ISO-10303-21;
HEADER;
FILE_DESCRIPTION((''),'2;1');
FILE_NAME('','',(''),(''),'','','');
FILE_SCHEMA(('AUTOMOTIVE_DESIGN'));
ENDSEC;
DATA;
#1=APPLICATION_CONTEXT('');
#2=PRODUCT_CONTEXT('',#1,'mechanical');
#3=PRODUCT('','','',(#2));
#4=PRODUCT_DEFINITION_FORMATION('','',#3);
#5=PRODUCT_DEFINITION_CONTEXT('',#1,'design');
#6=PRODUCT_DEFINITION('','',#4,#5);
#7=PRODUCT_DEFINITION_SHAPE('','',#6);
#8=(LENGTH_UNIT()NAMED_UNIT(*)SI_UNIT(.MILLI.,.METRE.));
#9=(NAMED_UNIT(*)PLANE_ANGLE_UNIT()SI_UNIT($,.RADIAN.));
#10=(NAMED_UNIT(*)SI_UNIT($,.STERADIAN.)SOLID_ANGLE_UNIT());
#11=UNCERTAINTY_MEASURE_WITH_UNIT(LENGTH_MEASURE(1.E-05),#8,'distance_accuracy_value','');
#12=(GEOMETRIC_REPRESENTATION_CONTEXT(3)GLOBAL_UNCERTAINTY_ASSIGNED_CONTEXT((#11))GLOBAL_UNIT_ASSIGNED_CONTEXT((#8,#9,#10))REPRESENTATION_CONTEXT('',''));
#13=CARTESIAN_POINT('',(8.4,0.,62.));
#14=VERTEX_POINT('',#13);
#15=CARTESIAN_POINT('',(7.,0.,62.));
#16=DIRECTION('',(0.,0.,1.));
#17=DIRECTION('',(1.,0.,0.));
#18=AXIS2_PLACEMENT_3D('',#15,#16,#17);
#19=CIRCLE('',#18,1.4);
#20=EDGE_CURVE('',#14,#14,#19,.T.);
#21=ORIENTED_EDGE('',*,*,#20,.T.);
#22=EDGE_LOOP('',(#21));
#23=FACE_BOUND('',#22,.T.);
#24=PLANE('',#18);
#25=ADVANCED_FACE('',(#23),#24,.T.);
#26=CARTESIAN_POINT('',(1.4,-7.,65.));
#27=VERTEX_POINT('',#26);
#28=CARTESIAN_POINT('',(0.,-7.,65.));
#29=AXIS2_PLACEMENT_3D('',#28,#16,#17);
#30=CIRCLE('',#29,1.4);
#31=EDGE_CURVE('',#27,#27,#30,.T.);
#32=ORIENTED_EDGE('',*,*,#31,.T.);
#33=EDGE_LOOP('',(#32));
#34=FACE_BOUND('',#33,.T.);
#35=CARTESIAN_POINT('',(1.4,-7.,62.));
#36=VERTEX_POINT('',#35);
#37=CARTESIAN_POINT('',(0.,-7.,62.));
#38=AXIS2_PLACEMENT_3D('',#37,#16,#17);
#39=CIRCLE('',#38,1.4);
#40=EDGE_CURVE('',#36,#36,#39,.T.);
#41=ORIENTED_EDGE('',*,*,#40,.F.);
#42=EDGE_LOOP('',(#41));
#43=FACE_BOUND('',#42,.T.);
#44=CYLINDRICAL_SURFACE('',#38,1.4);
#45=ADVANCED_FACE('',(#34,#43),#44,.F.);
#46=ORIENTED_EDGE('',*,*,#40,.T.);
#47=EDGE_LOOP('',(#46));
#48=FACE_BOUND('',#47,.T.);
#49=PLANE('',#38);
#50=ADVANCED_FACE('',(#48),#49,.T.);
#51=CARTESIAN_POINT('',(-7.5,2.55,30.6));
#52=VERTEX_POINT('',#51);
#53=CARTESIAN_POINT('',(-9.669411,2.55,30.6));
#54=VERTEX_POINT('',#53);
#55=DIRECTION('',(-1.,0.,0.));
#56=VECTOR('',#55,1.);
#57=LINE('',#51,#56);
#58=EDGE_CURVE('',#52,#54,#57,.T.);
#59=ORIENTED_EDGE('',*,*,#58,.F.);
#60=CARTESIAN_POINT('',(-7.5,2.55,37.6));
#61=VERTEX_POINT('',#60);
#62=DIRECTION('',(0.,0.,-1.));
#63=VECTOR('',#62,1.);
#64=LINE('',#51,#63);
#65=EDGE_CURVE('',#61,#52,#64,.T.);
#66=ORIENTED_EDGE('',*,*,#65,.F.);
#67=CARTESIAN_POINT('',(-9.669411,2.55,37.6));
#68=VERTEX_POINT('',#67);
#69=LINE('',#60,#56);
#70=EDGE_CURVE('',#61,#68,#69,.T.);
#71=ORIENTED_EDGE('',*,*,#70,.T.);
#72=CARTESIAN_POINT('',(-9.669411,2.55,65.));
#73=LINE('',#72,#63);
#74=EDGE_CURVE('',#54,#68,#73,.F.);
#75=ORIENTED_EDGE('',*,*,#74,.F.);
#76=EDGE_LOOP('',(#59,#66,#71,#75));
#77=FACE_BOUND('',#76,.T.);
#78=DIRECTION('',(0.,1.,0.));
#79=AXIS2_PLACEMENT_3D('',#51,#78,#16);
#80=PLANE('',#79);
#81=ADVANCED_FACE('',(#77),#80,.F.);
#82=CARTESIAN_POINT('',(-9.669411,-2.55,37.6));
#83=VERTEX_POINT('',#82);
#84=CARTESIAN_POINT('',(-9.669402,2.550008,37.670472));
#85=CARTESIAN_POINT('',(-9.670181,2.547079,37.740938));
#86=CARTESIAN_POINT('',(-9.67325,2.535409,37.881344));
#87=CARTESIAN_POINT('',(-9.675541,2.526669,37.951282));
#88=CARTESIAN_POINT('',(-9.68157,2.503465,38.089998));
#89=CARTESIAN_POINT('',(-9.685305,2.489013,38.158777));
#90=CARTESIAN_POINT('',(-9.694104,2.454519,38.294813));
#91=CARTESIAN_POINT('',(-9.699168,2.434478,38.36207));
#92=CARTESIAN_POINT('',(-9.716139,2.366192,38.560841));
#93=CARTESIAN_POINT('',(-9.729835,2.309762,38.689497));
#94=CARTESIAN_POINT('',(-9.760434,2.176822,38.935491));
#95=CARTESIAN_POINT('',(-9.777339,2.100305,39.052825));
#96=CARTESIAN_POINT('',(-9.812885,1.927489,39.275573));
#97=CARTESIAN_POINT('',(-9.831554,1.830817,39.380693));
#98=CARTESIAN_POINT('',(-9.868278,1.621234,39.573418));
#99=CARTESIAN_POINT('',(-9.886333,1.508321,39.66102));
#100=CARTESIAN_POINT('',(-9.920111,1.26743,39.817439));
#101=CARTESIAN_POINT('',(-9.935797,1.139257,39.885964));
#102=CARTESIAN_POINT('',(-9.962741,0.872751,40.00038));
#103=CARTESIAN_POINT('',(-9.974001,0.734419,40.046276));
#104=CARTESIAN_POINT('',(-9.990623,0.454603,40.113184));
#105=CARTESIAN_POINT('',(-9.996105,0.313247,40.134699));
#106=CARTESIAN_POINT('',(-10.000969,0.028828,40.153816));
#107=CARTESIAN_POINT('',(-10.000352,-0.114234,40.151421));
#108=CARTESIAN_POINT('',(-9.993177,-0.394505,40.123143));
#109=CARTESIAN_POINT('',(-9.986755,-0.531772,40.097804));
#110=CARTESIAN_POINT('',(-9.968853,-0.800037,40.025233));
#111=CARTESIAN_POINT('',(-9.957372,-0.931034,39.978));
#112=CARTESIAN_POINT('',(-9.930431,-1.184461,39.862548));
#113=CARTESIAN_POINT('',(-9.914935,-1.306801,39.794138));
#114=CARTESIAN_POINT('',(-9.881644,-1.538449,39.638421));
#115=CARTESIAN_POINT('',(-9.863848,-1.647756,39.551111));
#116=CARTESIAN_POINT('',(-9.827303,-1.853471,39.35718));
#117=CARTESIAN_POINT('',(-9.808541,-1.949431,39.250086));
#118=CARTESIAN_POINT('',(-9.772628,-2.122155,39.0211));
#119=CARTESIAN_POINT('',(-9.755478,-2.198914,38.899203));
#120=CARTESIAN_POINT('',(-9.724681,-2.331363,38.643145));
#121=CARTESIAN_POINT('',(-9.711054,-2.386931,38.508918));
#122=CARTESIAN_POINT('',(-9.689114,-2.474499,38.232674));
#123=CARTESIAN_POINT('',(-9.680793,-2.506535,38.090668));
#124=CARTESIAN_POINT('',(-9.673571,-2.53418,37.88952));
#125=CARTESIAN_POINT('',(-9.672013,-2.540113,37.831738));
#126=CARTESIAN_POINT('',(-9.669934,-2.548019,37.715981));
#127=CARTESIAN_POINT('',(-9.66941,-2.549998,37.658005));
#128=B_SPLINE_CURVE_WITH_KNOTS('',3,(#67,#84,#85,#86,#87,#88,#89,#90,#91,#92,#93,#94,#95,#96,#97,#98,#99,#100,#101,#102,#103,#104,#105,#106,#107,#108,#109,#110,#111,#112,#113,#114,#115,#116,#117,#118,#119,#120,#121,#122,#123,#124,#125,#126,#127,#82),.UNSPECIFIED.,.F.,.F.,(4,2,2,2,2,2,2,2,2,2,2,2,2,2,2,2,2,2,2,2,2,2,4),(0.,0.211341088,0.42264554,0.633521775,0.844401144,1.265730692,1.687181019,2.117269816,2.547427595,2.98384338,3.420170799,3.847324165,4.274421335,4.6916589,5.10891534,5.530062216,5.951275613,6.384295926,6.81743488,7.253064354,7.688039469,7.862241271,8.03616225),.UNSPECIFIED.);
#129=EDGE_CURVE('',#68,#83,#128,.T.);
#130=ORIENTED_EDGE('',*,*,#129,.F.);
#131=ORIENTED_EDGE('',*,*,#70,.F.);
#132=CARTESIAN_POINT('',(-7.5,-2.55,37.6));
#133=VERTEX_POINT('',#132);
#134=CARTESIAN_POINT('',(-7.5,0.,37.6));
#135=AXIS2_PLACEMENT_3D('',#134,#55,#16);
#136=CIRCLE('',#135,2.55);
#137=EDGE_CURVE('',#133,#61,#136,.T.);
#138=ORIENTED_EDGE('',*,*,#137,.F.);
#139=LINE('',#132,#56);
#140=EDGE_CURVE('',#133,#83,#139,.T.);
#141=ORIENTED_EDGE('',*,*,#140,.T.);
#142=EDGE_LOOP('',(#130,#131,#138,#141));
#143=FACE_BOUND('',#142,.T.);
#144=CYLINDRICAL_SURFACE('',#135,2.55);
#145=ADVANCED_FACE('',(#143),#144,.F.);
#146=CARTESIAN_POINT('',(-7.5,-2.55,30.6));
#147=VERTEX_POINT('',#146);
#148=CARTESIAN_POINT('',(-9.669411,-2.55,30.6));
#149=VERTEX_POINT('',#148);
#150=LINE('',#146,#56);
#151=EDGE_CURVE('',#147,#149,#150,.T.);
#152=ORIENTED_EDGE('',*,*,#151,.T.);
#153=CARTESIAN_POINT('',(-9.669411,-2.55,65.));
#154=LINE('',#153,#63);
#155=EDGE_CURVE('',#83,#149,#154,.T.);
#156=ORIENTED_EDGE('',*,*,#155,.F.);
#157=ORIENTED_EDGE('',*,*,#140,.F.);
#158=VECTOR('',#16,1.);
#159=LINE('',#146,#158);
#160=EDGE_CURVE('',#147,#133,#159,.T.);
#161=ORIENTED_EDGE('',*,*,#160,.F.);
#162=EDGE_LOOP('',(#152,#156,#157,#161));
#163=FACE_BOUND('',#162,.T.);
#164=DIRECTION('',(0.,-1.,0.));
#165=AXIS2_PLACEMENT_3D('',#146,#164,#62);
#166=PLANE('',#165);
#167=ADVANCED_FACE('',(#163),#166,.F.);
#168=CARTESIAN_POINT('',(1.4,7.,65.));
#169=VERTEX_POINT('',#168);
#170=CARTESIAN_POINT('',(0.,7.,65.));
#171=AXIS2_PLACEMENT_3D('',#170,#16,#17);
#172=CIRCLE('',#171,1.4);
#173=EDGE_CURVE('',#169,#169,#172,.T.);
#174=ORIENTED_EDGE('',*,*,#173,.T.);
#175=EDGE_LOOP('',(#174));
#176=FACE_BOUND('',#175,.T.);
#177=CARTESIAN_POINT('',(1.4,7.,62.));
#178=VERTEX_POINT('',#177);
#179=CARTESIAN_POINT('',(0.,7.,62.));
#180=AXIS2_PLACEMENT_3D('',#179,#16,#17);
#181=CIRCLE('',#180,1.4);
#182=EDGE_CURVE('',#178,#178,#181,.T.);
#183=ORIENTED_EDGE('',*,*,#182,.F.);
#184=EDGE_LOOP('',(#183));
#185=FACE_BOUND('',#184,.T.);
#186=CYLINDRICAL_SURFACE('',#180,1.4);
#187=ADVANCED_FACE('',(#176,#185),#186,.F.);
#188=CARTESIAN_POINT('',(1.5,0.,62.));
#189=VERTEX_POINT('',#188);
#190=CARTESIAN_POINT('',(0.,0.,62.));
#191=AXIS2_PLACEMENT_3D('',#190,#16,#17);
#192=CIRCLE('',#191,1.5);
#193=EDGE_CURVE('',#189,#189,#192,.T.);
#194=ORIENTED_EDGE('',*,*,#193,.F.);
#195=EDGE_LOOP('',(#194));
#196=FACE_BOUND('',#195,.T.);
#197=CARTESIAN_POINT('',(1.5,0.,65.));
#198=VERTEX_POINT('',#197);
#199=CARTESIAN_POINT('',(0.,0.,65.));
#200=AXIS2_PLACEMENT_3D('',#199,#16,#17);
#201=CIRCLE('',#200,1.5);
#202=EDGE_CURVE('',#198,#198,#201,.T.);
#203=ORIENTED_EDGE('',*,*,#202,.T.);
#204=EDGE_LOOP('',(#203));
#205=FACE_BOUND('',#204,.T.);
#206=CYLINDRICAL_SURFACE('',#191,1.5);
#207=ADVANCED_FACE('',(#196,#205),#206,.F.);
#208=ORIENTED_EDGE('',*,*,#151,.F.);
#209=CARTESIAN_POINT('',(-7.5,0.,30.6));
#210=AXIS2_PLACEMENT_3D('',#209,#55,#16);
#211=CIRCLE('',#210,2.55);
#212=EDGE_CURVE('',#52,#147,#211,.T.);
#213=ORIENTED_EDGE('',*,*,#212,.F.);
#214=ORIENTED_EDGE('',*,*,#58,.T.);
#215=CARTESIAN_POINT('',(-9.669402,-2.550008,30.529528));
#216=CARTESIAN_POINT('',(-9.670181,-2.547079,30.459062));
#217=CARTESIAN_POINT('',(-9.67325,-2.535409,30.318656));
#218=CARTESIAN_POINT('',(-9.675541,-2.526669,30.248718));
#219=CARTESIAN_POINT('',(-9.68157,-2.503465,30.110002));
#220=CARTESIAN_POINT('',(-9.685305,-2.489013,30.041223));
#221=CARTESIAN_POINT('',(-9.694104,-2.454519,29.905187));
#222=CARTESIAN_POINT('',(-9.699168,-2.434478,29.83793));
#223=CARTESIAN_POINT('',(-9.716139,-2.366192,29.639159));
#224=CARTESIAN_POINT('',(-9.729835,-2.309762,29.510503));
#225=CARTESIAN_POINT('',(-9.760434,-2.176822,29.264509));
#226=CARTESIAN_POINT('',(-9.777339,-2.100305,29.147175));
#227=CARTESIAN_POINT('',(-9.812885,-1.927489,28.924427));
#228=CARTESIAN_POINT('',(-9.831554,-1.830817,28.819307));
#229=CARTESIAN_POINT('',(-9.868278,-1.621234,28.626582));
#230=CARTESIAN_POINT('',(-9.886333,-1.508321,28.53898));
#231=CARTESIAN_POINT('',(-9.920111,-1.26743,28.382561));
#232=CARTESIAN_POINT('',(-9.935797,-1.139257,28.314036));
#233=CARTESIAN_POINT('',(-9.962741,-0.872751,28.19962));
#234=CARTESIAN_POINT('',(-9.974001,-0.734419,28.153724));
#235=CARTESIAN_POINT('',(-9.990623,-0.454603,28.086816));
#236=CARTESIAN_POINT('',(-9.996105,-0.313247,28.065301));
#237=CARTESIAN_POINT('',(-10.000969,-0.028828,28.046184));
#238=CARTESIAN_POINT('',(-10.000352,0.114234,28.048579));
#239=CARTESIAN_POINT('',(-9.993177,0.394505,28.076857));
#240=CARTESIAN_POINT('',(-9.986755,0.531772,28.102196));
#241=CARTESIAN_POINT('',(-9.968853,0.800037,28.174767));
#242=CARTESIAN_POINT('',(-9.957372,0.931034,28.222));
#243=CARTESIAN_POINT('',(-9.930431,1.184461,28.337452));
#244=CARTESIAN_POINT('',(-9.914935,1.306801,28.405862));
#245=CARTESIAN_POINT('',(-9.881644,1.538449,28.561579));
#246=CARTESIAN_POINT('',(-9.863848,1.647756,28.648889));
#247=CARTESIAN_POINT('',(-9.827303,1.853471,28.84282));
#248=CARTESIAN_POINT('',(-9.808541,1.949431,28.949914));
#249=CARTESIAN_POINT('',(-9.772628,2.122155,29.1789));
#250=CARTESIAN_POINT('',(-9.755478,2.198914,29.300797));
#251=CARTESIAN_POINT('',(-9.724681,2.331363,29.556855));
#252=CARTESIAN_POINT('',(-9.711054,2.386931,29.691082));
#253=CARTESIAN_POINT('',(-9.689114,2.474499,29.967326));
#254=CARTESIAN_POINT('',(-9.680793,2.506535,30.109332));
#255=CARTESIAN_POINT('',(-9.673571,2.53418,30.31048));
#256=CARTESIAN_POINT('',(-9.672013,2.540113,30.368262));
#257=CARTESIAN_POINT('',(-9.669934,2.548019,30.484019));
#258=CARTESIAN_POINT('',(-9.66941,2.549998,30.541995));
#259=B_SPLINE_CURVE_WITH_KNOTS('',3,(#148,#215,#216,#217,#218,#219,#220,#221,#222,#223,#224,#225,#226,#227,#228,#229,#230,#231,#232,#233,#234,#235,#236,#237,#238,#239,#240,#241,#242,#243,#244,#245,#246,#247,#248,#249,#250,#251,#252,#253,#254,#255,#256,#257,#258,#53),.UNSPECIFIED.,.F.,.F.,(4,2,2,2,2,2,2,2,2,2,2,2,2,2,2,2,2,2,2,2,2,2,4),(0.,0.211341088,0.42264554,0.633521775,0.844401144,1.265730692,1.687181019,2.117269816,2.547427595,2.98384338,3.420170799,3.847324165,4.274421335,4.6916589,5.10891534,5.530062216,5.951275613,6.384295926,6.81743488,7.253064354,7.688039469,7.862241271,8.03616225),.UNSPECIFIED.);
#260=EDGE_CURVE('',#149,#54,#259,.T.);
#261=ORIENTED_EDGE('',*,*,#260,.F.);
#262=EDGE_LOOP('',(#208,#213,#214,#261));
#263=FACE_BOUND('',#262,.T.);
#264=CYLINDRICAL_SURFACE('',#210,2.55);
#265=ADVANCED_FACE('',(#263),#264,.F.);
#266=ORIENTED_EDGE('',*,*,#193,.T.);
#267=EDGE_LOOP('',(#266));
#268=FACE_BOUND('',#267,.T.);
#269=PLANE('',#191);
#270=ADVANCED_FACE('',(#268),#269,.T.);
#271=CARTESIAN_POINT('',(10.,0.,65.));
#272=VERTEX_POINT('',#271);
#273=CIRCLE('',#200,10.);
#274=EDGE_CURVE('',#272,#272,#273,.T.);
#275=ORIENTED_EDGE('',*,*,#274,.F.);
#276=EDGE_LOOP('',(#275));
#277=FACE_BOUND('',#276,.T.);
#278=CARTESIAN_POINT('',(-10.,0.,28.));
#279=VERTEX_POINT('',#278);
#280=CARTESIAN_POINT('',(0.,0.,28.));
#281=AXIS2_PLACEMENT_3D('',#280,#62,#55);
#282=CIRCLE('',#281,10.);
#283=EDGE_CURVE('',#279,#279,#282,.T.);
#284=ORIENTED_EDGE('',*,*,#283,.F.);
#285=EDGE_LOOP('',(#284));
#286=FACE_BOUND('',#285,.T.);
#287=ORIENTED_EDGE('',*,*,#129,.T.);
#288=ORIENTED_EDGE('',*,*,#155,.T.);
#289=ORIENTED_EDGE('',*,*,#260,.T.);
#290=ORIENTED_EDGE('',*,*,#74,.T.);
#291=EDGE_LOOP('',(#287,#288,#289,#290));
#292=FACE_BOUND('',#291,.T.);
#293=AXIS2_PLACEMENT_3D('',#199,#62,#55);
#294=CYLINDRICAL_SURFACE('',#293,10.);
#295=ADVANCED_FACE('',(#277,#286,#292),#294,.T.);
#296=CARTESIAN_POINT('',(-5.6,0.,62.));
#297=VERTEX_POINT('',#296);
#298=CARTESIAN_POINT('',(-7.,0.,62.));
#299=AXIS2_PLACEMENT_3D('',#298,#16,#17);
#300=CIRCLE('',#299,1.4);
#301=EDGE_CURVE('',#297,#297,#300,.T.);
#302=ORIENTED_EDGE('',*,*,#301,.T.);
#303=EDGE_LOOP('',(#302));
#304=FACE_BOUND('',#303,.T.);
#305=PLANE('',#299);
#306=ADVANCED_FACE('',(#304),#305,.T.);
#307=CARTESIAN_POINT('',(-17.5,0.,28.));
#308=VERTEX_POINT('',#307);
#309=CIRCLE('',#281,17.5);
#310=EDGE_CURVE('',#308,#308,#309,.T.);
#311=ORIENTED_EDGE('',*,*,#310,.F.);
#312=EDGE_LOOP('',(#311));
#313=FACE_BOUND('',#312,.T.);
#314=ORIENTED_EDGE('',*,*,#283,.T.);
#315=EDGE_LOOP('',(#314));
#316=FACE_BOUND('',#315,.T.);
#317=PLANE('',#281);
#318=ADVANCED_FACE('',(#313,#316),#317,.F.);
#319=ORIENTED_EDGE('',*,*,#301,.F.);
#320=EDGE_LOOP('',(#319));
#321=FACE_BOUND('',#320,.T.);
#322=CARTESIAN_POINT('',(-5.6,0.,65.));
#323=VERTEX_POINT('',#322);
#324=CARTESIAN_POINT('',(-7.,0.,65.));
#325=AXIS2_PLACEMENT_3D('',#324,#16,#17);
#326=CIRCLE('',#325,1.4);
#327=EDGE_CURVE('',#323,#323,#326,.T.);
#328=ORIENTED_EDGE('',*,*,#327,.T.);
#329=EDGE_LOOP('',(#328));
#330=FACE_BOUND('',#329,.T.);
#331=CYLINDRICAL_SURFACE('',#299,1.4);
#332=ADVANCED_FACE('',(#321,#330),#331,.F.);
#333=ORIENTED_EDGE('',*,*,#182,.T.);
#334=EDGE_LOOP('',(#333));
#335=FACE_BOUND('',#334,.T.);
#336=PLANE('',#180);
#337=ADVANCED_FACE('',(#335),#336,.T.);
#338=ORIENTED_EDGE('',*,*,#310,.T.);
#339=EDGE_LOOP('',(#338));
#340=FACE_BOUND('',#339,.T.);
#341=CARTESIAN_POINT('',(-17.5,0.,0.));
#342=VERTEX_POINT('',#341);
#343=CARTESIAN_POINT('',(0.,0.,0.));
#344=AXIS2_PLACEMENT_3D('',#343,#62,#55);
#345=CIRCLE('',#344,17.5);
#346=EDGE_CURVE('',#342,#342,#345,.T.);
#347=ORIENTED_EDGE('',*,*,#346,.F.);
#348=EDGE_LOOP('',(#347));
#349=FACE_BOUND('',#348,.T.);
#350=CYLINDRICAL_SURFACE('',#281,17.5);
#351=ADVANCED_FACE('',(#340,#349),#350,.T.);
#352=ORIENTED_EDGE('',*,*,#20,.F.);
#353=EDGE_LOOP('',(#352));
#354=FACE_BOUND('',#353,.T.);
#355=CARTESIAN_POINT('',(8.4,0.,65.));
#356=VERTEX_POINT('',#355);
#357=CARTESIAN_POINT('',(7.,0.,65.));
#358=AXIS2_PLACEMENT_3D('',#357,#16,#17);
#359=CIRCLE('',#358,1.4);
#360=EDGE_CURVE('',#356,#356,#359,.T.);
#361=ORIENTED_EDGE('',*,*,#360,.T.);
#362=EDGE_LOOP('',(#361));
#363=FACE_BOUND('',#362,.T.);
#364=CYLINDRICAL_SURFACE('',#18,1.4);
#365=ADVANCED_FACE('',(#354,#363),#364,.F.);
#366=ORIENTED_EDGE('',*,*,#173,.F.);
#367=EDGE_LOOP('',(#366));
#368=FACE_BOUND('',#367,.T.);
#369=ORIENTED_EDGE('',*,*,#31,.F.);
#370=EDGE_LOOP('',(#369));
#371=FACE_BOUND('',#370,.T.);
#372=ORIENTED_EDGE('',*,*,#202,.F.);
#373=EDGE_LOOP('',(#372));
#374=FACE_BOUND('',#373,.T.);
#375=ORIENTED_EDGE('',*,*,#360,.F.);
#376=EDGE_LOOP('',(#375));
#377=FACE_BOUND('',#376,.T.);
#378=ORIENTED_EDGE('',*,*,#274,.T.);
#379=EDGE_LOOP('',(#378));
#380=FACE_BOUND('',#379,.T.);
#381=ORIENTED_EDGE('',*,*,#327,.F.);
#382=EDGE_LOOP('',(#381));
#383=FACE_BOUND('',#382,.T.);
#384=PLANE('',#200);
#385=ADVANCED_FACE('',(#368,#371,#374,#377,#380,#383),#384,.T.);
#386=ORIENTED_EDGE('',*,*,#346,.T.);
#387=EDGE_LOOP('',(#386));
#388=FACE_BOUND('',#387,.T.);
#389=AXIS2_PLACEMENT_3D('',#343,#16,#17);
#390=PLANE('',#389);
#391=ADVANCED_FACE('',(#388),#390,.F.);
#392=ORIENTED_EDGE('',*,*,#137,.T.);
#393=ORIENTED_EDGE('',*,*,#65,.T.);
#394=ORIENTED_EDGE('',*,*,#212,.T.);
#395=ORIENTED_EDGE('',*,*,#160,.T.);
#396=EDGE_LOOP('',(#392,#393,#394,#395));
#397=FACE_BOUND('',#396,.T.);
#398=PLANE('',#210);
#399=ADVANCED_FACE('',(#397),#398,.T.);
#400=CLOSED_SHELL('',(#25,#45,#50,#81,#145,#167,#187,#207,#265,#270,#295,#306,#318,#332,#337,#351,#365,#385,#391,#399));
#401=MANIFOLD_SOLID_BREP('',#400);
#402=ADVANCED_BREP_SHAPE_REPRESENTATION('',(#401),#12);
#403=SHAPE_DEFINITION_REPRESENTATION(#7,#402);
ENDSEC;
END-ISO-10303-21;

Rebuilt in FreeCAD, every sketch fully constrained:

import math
import FreeCAD as App
import Part
import Sketcher
from FreeCAD import Vector

doc = App.newDocument("Part")
params = doc.addObject("Spreadsheet::Sheet", "Params")
for row, (alias, value) in enumerate([
    ("sketch1_diameter", "20 mm"),
    ("pad1_length", "65 mm"),
    ("sketch2_height", "7 mm"),
    ("sketch2_radius", "2.55 mm"),
    ("pocket1_length", "2.5 mm"),
    ("sketch3_diameter", "35 mm"),
    ("pad2_length", "28 mm"),
    ("sketch4_diameter", "2.8 mm"),
    ("pocket2_length", "3 mm"),
    ("sketch5_diameter", "3 mm"),
    ("pocket3_length", "3 mm"),
], start=1):
    params.set(f"A{row}", alias)
    params.set(f"B{row}", "=" + value)
    params.setAlias(f"B{row}", alias)

body = doc.addObject("PartDesign::Body", "Body")

sketch1 = body.newObject("Sketcher::SketchObject", "Sketch")
sketch1.AttachmentSupport = (doc.getObject("XY_Plane"), [""])
sketch1.MapMode = "FlatFace"
sketch1.addGeometry(Part.Circle(Vector(0, 0, 0), Vector(0, 0, 1), 10), False)
sketch1.addConstraint([
    Sketcher.Constraint("Coincident", 0, 3, -1, 1),
    Sketcher.Constraint("Diameter", 0, 20.0),
])
sketch1.setExpression("Constraints[1]", "Params.sketch1_diameter")
pad1 = body.newObject("PartDesign::Pad", "Pad")
pad1.Profile = sketch1
pad1.setExpression("Length", "Params.pad1_length")

sketch2 = body.newObject("Sketcher::SketchObject", "Sketch001")
sketch2.AttachmentSupport = (doc.getObject("YZ_Plane"), [""])
sketch2.MapMode = "FlatFace"
sketch2.AttachmentOffset = App.Placement(Vector(0, 0, -10), App.Rotation())
sketch2.addGeometry([
    Part.LineSegment(Vector(2.5, 37.6, 0), Vector(2.5, 30.6, 0)),
    Part.ArcOfCircle(Part.Circle(Vector(0, 30.6, 0), Vector(0, 0, 1), 2.5), math.radians(180), math.radians(360)),
    Part.LineSegment(Vector(-2.5, 30.6, 0), Vector(-2.5, 37.6, 0)),
    Part.ArcOfCircle(Part.Circle(Vector(0, 37.6, 0), Vector(0, 0, 1), 2.5), math.radians(0), math.radians(180)),
], False)
sketch2.addConstraint([
    Sketcher.Constraint("Tangent", 0, 2, 1, 2),
    Sketcher.Constraint("Tangent", 1, 1, 2, 1),
    Sketcher.Constraint("Tangent", 2, 2, 3, 2),
    Sketcher.Constraint("Tangent", 3, 1, 0, 1),
    Sketcher.Constraint("Vertical", 0),
    Sketcher.Constraint("Vertical", 2),
    Sketcher.Constraint("PointOnObject", 1, 3, -2),
    Sketcher.Constraint("DistanceY", 0, 2, 0, 1, 7.0),
    Sketcher.Constraint("Radius", 1, 2.55),
    Sketcher.Constraint("DistanceY", -1, 1, 1, 3, 30.6),
])
sketch2.setExpression("Constraints[7]", "Params.sketch2_height")
sketch2.setExpression("Constraints[8]", "Params.sketch2_radius")
pocket1 = body.newObject("PartDesign::Pocket", "Pocket")
pocket1.Profile = sketch2
pocket1.setExpression("Length", "Params.pocket1_length")
pocket1.Reversed = True

sketch3 = body.newObject("Sketcher::SketchObject", "Sketch002")
sketch3.AttachmentSupport = (doc.getObject("XY_Plane"), [""])
sketch3.MapMode = "FlatFace"
sketch3.addGeometry(Part.Circle(Vector(0, 0, 0), Vector(0, 0, 1), 18), False)
sketch3.addConstraint([
    Sketcher.Constraint("Coincident", 0, 3, -1, 1),
    Sketcher.Constraint("Diameter", 0, 35.0),
])
sketch3.setExpression("Constraints[1]", "Params.sketch3_diameter")
pad2 = body.newObject("PartDesign::Pad", "Pad001")
pad2.Profile = sketch3
pad2.setExpression("Length", "Params.pad2_length")

sketch4 = body.newObject("Sketcher::SketchObject", "Sketch003")
sketch4.AttachmentSupport = (doc.getObject("XY_Plane"), [""])
sketch4.MapMode = "FlatFace"
sketch4.AttachmentOffset = App.Placement(Vector(0, 0, 65), App.Rotation())
sketch4.addGeometry([
    Part.Circle(Vector(0, 7, 0), Vector(0, 0, 1), 1.4),
    Part.Circle(Vector(7, 0, 0), Vector(0, 0, 1), 1.4),
    Part.Circle(Vector(0, -7, 0), Vector(0, 0, 1), 1.4),
    Part.Circle(Vector(-7, 0, 0), Vector(0, 0, 1), 1.4),
], False)
sketch4.addConstraint([
    Sketcher.Constraint("Equal", 0, 1),
    Sketcher.Constraint("Equal", 1, 2),
    Sketcher.Constraint("Equal", 2, 3),
    Sketcher.Constraint("Symmetric", 0, 3, 2, 3, -1, 1),
    Sketcher.Constraint("Symmetric", 1, 3, 3, 3, -1, 1),
    Sketcher.Constraint("PointOnObject", 0, 3, -2),
    Sketcher.Constraint("PointOnObject", 1, 3, -1),
    Sketcher.Constraint("Diameter", 0, 2.8),
    Sketcher.Constraint("DistanceY", -1, 1, 0, 3, 7.0),
    Sketcher.Constraint("DistanceX", -1, 1, 1, 3, 7.0),
])
sketch4.setExpression("Constraints[7]", "Params.sketch4_diameter")
pocket2 = body.newObject("PartDesign::Pocket", "Pocket001")
pocket2.Profile = sketch4
pocket2.setExpression("Length", "Params.pocket2_length")

sketch5 = body.newObject("Sketcher::SketchObject", "Sketch004")
sketch5.AttachmentSupport = (doc.getObject("XY_Plane"), [""])
sketch5.MapMode = "FlatFace"
sketch5.AttachmentOffset = App.Placement(Vector(0, 0, 65), App.Rotation())
sketch5.addGeometry(Part.Circle(Vector(0, 0, 0), Vector(0, 0, 1), 1.5), False)
sketch5.addConstraint([
    Sketcher.Constraint("Coincident", 0, 3, -1, 1),
    Sketcher.Constraint("Diameter", 0, 3.0),
])
sketch5.setExpression("Constraints[1]", "Params.sketch5_diameter")
pocket3 = body.newObject("PartDesign::Pocket", "Pocket002")
pocket3.Profile = sketch5
pocket3.setExpression("Length", "Params.pocket3_length")

doc.recompute()
